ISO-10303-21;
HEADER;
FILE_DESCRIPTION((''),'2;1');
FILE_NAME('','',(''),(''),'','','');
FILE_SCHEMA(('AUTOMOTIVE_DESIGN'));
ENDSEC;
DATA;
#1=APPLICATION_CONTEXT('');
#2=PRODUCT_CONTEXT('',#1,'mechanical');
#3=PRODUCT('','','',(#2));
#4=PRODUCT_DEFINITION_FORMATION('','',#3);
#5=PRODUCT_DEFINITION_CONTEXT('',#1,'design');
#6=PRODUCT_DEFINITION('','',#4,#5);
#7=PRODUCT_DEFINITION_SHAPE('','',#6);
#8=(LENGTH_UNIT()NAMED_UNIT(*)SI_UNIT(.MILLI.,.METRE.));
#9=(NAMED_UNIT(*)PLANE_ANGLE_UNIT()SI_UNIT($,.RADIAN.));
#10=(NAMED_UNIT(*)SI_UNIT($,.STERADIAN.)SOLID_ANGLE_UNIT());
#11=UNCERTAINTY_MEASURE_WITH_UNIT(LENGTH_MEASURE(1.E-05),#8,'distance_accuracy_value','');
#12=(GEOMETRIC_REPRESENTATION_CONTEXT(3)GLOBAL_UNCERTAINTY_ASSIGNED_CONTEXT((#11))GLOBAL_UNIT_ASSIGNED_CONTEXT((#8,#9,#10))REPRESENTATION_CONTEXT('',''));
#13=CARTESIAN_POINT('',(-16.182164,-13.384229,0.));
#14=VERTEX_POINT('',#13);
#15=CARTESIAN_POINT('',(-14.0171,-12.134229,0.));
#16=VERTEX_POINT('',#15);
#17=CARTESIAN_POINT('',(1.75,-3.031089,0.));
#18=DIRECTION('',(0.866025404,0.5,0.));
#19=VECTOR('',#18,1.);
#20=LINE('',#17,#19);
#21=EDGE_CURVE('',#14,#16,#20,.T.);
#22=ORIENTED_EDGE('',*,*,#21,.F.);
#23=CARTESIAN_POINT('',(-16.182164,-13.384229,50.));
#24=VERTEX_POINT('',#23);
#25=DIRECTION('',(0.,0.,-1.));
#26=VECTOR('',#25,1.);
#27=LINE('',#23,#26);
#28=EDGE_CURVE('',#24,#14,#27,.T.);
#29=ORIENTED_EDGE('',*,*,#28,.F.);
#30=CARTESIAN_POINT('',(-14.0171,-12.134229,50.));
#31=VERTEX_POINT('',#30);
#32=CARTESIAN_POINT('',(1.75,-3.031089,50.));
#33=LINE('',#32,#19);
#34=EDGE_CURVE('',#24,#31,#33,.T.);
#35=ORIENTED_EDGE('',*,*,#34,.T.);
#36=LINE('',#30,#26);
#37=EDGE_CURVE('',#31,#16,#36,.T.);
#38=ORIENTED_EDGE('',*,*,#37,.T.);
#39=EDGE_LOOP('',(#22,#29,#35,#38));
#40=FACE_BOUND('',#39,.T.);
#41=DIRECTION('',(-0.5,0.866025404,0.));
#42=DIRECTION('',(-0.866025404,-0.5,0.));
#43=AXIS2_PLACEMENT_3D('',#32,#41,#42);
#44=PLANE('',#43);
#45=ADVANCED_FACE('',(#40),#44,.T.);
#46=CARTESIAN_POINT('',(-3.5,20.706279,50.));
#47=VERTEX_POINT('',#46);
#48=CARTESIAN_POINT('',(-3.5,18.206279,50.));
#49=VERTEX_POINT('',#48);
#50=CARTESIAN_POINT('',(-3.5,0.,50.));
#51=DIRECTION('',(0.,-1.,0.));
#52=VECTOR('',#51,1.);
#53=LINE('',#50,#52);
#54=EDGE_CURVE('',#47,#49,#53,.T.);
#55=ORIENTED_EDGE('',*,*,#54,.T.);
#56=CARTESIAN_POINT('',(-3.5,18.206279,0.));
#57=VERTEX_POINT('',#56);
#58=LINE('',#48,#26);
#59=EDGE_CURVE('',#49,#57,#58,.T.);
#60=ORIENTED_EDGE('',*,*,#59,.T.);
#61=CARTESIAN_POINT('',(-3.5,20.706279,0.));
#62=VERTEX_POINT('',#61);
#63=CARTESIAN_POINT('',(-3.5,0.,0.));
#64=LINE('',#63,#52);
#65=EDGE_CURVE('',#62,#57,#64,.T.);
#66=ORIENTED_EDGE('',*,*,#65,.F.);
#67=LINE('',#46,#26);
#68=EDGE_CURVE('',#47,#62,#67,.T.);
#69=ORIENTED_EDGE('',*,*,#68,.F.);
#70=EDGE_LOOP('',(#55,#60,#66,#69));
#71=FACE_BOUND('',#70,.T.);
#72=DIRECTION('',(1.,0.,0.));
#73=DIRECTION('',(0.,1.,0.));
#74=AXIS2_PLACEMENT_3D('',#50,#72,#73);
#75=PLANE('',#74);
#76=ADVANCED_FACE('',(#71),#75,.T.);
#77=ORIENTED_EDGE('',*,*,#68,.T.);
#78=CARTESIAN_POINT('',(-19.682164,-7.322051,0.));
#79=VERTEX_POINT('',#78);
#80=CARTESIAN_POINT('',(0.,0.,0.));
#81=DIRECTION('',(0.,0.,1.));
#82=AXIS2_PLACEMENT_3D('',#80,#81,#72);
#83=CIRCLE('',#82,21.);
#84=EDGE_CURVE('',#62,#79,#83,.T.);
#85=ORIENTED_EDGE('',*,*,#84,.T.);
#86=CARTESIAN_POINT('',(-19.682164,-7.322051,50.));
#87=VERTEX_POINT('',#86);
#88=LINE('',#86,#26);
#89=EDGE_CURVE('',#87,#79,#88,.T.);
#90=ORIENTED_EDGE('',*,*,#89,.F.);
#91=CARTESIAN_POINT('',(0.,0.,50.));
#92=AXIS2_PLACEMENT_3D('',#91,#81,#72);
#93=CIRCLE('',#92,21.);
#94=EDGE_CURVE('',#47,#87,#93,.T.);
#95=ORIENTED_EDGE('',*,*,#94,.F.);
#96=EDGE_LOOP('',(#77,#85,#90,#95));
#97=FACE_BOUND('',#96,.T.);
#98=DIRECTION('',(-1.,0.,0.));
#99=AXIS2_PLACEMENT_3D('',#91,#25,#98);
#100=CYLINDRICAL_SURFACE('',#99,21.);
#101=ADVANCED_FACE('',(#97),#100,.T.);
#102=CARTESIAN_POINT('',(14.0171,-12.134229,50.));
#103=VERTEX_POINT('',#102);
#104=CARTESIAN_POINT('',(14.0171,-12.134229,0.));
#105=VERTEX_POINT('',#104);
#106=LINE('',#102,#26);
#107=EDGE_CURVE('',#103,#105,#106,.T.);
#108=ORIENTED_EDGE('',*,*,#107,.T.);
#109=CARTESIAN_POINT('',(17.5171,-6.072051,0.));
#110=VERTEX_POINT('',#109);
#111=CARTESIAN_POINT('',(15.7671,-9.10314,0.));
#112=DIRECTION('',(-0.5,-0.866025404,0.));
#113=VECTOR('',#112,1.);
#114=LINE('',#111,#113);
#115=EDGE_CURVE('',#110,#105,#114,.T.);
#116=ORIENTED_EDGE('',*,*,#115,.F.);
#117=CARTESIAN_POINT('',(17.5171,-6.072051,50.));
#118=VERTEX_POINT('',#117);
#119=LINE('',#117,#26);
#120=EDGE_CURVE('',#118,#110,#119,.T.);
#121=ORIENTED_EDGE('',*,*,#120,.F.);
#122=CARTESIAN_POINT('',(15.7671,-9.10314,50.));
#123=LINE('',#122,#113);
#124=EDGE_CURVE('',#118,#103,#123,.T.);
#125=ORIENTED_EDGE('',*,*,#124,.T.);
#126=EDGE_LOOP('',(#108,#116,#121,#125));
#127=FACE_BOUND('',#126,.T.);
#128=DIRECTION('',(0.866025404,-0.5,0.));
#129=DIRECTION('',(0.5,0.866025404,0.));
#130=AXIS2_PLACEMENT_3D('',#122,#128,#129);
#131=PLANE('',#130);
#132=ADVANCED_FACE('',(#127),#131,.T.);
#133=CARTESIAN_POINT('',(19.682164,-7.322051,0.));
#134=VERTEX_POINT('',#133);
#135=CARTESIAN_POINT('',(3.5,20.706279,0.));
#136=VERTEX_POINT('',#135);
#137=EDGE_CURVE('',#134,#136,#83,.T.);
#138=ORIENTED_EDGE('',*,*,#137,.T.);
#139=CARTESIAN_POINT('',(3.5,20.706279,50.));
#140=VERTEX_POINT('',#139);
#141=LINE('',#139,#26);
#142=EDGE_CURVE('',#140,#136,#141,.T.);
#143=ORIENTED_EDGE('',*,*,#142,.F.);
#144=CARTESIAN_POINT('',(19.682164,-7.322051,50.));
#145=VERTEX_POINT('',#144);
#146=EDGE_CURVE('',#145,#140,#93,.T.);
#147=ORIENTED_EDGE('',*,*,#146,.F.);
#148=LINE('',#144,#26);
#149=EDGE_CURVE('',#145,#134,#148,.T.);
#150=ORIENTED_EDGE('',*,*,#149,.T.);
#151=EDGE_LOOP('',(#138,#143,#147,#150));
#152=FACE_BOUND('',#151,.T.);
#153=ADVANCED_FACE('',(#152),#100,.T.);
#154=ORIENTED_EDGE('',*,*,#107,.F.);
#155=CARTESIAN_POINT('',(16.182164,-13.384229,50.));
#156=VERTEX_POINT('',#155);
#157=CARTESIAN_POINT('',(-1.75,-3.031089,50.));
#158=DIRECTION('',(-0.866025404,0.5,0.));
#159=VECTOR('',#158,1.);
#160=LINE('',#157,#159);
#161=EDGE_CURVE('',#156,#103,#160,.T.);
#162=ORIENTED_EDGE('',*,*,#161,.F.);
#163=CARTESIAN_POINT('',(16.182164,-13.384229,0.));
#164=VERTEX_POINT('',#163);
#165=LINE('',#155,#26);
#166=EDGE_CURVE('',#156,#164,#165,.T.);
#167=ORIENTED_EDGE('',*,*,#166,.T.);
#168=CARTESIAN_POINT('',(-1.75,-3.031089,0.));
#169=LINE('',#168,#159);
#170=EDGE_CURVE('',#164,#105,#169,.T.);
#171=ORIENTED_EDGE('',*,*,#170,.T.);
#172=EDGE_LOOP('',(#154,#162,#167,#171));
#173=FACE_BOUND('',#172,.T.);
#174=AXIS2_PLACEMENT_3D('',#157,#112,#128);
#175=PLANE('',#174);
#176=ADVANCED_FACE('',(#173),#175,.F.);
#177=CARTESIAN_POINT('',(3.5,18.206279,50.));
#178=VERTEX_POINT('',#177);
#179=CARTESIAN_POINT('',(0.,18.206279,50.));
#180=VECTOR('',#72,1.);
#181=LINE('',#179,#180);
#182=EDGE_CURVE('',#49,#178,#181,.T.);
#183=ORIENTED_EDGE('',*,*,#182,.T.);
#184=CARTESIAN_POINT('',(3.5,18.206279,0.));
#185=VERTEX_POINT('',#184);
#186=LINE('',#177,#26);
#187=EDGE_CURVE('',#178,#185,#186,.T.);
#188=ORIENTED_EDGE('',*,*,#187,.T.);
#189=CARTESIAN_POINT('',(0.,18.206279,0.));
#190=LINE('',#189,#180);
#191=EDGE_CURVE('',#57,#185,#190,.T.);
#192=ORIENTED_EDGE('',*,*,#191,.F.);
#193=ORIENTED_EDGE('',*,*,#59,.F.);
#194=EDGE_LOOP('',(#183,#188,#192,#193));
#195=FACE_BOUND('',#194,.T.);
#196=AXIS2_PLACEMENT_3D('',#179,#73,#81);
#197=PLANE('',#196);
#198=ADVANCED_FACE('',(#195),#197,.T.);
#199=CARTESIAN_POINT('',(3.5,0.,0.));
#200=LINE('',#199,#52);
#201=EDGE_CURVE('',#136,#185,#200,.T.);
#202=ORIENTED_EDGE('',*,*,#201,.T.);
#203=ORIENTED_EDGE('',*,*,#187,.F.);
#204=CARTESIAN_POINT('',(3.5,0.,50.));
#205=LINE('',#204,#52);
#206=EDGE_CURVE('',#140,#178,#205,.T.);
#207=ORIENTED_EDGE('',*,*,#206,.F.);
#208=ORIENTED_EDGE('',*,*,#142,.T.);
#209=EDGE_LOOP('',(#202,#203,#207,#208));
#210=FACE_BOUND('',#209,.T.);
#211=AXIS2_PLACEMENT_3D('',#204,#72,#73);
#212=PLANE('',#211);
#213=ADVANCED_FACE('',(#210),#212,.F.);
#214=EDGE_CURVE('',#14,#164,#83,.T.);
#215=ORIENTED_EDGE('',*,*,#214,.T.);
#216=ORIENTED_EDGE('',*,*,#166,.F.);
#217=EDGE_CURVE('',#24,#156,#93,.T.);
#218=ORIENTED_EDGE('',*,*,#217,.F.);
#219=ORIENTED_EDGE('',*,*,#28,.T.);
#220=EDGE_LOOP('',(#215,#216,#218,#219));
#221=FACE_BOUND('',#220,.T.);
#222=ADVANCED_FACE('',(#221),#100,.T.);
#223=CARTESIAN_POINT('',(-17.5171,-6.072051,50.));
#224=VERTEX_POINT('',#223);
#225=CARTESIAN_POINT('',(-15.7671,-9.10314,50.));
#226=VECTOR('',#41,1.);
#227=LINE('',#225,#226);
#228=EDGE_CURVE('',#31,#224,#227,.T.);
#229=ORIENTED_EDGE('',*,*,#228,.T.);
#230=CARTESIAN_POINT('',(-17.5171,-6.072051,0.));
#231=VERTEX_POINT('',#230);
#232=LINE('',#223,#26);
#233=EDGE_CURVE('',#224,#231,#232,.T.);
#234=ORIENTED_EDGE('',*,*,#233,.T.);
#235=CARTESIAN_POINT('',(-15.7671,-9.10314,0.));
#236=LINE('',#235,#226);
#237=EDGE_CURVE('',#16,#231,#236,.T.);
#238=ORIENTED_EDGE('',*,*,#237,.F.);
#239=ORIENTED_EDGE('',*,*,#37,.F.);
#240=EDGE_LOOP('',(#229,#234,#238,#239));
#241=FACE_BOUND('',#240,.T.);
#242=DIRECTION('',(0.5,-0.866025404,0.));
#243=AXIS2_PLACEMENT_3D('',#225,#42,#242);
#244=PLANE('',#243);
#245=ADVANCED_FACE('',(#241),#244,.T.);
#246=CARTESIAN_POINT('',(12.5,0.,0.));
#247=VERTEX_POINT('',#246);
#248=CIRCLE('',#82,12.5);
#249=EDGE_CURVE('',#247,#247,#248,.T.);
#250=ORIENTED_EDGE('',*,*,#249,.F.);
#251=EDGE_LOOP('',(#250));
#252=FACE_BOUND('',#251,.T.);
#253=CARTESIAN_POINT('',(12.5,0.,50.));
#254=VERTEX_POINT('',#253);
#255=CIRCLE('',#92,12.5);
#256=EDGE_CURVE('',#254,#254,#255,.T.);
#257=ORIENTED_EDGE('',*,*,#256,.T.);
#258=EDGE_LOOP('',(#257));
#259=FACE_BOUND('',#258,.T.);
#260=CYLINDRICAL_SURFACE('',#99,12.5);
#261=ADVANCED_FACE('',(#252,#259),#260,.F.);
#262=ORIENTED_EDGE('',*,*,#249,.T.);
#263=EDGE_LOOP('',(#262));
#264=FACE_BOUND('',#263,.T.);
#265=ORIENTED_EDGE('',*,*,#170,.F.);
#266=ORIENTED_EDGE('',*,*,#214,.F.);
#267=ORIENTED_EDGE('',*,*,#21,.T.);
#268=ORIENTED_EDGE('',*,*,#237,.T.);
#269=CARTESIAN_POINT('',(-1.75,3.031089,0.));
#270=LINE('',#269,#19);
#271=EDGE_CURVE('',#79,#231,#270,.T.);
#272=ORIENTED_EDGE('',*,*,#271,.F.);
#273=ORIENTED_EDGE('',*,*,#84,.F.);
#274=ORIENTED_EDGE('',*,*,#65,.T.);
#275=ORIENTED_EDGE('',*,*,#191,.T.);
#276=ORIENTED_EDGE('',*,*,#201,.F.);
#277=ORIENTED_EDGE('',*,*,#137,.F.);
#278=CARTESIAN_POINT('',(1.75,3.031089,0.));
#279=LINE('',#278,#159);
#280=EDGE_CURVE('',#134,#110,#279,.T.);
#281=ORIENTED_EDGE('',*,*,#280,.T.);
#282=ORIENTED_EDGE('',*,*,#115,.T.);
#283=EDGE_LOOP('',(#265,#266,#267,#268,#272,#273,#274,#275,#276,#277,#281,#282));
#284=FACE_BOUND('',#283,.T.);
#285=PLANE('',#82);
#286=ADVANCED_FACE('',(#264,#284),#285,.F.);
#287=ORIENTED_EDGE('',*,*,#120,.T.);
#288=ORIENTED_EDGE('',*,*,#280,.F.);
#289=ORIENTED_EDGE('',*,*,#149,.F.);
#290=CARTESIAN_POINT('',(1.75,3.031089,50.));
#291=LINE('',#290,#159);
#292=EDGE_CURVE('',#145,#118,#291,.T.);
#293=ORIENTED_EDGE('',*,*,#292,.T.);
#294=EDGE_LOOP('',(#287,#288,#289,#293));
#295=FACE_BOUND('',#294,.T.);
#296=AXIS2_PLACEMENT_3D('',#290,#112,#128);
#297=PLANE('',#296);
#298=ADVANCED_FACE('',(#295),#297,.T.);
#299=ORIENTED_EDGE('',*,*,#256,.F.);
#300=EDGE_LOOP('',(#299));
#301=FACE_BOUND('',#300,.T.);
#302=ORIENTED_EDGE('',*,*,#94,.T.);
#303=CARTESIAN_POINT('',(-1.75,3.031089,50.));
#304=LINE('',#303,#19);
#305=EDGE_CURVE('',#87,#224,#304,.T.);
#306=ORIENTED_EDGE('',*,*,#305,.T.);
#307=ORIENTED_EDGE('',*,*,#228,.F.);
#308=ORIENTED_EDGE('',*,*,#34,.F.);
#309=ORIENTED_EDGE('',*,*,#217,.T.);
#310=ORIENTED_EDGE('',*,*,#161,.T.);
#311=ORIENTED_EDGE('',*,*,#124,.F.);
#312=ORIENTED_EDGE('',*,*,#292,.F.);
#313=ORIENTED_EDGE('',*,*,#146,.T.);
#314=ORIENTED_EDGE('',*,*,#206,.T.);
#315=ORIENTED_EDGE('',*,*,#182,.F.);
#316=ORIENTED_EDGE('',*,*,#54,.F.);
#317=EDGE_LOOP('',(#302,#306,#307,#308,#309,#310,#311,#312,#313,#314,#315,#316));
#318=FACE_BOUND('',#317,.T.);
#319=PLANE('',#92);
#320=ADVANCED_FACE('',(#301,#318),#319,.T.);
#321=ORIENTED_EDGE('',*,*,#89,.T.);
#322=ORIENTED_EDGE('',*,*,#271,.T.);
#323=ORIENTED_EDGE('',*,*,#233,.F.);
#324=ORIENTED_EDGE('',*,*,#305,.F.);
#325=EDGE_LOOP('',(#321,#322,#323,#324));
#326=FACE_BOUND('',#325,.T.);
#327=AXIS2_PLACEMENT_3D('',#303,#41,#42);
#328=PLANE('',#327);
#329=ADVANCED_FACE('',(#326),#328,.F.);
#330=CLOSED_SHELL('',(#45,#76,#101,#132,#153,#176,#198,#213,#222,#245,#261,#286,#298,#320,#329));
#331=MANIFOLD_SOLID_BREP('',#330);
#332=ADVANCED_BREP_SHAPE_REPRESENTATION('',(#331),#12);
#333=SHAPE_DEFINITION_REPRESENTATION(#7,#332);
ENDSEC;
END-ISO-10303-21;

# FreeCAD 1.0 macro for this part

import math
import FreeCAD as App
import Part
import Sketcher
from FreeCAD import Vector
Q = App.Units.Quantity

doc = App.newDocument("Part")
params = doc.addObject("Spreadsheet::Sheet", "Params")
for row, (alias, value) in enumerate([
    ("sketch1_diameter", "25 mm"),
    ("sketch1_radius", "21 mm"),
    ("sketch1_width", "7 mm"),
    ("sketch1_length", "7 mm"),
    ("sketch1_height", "2.5 mm"),
    ("pad1_length", "50 mm"),
], start=1):
    params.set(f"A{row}", alias)
    params.set(f"B{row}", "=" + value)
    params.setAlias(f"B{row}", alias)

body = doc.addObject("PartDesign::Body", "Body")

# Sketch on XY plane
sketch1 = doc.addObject("Sketcher::SketchObject", "Sketch")
body.addObject(sketch1)
sketch1.AttachmentSupport = (doc.XY_Plane, [""])
sketch1.MapMode = "FlatFace"
sketch1.addGeometry([
    Part.LineSegment(Vector(-3.5, 18.2, 0), Vector(-3.5, 20.7, 0)),  # 0
    Part.ArcOfCircle(Part.Circle(Vector(0, 0, 0), Vector(0, 0, 1), 21), math.radians(100), math.radians(200)),  # 1
    Part.LineSegment(Vector(-19.7, -7.3, 0), Vector(-17.5, -6.1, 0)),  # 2
    Part.LineSegment(Vector(-17.5, -6.1, 0), Vector(-14, -12.1, 0)),  # 3
    Part.LineSegment(Vector(-14, -12.1, 0), Vector(-16.2, -13.4, 0)),  # 4
    Part.ArcOfCircle(Part.Circle(Vector(0, 0, 0), Vector(0, 0, 1), 21), math.radians(-140), math.radians(-40)),  # 5
    Part.LineSegment(Vector(16.2, -13.4, 0), Vector(14, -12.1, 0)),  # 6
    Part.LineSegment(Vector(14, -12.1, 0), Vector(17.5, -6.1, 0)),  # 7
    Part.LineSegment(Vector(17.5, -6.1, 0), Vector(19.7, -7.3, 0)),  # 8
    Part.ArcOfCircle(Part.Circle(Vector(0, 0, 0), Vector(0, 0, 1), 21), math.radians(-20), math.radians(0)),  # 9
    Part.ArcOfCircle(Part.Circle(Vector(0, 0, 0), Vector(0, 0, 1), 21), math.radians(0), math.radians(80)),  # 10
    Part.LineSegment(Vector(3.5, 20.7, 0), Vector(3.5, 18.2, 0)),  # 11
    Part.LineSegment(Vector(3.5, 18.2, 0), Vector(-3.5, 18.2, 0)),  # 12
    Part.Circle(Vector(0, 0, 0), Vector(0, 0, 1), 12.5),  # 13
], False)
sketch1.addConstraint([
    Sketcher.Constraint("Coincident", 0, 2, 1, 1),
    Sketcher.Constraint("Coincident", 1, 2, 2, 1),
    Sketcher.Constraint("Coincident", 2, 2, 3, 1),
    Sketcher.Constraint("Coincident", 3, 2, 4, 1),
    Sketcher.Constraint("Coincident", 4, 2, 5, 1),
    Sketcher.Constraint("Coincident", 5, 2, 6, 1),
    Sketcher.Constraint("Coincident", 6, 2, 7, 1),
    Sketcher.Constraint("Coincident", 7, 2, 8, 1),
    Sketcher.Constraint("Coincident", 8, 2, 9, 1),
    Sketcher.Constraint("Tangent", 9, 2, 10, 1),
    Sketcher.Constraint("Coincident", 10, 2, 11, 1),
    Sketcher.Constraint("Coincident", 11, 2, 12, 1),
    Sketcher.Constraint("Coincident", 12, 2, 0, 1),
    Sketcher.Constraint("Vertical", 0),
    Sketcher.Constraint("Vertical", 11),
    Sketcher.Constraint("Horizontal", 12),
    Sketcher.Constraint("Coincident", 1, 3, -1, 1),
    Sketcher.Constraint("Coincident", 5, 3, -1, 1),
    Sketcher.Constraint("Coincident", 9, 3, -1, 1),
    Sketcher.Constraint("Coincident", 13, 3, -1, 1),
    Sketcher.Constraint("Equal", 1, 5),
    Sketcher.Constraint("Equal", 5, 9),
    Sketcher.Constraint("Equal", 9, 10),
    Sketcher.Constraint("Symmetric", 3, 2, 6, 2, -2),
    Sketcher.Constraint("Symmetric", 2, 2, 7, 2, -2),
    Sketcher.Constraint("PointOnObject", 9, 2, -1),
    Sketcher.Constraint("Perpendicular", 2, 3),
    Sketcher.Constraint("Perpendicular", 3, 4),
    Sketcher.Constraint("Perpendicular", 6, 7),
    Sketcher.Constraint("Perpendicular", 7, 8),
    Sketcher.Constraint("Horizontal", 0, 2, 10, 2),
    Sketcher.Constraint("Equal", 2, 4),
    Sketcher.Constraint("Diameter", 13, Q("25 mm")),
    Sketcher.Constraint("Radius", 1, Q("21 mm")),
    Sketcher.Constraint("DistanceX", 12, 2, 12, 1, Q("7 mm")),
    Sketcher.Constraint("Angle", 2, Q("30 deg")),
    Sketcher.Constraint("Distance", 3, Q("7 mm")),
    Sketcher.Constraint("DistanceY", 0, 1, 0, 2, Q("2.5 mm")),
    Sketcher.Constraint("Distance", 2, Q("2.5 mm")),
])
sketch1.setExpression("Constraints[32]", "Params.sketch1_diameter")
sketch1.setExpression("Constraints[33]", "Params.sketch1_radius")
sketch1.setExpression("Constraints[34]", "Params.sketch1_width")
sketch1.setExpression("Constraints[36]", "Params.sketch1_length")
sketch1.setExpression("Constraints[37]", "Params.sketch1_height")
pad1 = doc.addObject("PartDesign::Pad", "Pad")
body.addObject(pad1)
pad1.Profile = sketch1
pad1.setExpression("Length", "Params.pad1_length")

doc.recompute()
